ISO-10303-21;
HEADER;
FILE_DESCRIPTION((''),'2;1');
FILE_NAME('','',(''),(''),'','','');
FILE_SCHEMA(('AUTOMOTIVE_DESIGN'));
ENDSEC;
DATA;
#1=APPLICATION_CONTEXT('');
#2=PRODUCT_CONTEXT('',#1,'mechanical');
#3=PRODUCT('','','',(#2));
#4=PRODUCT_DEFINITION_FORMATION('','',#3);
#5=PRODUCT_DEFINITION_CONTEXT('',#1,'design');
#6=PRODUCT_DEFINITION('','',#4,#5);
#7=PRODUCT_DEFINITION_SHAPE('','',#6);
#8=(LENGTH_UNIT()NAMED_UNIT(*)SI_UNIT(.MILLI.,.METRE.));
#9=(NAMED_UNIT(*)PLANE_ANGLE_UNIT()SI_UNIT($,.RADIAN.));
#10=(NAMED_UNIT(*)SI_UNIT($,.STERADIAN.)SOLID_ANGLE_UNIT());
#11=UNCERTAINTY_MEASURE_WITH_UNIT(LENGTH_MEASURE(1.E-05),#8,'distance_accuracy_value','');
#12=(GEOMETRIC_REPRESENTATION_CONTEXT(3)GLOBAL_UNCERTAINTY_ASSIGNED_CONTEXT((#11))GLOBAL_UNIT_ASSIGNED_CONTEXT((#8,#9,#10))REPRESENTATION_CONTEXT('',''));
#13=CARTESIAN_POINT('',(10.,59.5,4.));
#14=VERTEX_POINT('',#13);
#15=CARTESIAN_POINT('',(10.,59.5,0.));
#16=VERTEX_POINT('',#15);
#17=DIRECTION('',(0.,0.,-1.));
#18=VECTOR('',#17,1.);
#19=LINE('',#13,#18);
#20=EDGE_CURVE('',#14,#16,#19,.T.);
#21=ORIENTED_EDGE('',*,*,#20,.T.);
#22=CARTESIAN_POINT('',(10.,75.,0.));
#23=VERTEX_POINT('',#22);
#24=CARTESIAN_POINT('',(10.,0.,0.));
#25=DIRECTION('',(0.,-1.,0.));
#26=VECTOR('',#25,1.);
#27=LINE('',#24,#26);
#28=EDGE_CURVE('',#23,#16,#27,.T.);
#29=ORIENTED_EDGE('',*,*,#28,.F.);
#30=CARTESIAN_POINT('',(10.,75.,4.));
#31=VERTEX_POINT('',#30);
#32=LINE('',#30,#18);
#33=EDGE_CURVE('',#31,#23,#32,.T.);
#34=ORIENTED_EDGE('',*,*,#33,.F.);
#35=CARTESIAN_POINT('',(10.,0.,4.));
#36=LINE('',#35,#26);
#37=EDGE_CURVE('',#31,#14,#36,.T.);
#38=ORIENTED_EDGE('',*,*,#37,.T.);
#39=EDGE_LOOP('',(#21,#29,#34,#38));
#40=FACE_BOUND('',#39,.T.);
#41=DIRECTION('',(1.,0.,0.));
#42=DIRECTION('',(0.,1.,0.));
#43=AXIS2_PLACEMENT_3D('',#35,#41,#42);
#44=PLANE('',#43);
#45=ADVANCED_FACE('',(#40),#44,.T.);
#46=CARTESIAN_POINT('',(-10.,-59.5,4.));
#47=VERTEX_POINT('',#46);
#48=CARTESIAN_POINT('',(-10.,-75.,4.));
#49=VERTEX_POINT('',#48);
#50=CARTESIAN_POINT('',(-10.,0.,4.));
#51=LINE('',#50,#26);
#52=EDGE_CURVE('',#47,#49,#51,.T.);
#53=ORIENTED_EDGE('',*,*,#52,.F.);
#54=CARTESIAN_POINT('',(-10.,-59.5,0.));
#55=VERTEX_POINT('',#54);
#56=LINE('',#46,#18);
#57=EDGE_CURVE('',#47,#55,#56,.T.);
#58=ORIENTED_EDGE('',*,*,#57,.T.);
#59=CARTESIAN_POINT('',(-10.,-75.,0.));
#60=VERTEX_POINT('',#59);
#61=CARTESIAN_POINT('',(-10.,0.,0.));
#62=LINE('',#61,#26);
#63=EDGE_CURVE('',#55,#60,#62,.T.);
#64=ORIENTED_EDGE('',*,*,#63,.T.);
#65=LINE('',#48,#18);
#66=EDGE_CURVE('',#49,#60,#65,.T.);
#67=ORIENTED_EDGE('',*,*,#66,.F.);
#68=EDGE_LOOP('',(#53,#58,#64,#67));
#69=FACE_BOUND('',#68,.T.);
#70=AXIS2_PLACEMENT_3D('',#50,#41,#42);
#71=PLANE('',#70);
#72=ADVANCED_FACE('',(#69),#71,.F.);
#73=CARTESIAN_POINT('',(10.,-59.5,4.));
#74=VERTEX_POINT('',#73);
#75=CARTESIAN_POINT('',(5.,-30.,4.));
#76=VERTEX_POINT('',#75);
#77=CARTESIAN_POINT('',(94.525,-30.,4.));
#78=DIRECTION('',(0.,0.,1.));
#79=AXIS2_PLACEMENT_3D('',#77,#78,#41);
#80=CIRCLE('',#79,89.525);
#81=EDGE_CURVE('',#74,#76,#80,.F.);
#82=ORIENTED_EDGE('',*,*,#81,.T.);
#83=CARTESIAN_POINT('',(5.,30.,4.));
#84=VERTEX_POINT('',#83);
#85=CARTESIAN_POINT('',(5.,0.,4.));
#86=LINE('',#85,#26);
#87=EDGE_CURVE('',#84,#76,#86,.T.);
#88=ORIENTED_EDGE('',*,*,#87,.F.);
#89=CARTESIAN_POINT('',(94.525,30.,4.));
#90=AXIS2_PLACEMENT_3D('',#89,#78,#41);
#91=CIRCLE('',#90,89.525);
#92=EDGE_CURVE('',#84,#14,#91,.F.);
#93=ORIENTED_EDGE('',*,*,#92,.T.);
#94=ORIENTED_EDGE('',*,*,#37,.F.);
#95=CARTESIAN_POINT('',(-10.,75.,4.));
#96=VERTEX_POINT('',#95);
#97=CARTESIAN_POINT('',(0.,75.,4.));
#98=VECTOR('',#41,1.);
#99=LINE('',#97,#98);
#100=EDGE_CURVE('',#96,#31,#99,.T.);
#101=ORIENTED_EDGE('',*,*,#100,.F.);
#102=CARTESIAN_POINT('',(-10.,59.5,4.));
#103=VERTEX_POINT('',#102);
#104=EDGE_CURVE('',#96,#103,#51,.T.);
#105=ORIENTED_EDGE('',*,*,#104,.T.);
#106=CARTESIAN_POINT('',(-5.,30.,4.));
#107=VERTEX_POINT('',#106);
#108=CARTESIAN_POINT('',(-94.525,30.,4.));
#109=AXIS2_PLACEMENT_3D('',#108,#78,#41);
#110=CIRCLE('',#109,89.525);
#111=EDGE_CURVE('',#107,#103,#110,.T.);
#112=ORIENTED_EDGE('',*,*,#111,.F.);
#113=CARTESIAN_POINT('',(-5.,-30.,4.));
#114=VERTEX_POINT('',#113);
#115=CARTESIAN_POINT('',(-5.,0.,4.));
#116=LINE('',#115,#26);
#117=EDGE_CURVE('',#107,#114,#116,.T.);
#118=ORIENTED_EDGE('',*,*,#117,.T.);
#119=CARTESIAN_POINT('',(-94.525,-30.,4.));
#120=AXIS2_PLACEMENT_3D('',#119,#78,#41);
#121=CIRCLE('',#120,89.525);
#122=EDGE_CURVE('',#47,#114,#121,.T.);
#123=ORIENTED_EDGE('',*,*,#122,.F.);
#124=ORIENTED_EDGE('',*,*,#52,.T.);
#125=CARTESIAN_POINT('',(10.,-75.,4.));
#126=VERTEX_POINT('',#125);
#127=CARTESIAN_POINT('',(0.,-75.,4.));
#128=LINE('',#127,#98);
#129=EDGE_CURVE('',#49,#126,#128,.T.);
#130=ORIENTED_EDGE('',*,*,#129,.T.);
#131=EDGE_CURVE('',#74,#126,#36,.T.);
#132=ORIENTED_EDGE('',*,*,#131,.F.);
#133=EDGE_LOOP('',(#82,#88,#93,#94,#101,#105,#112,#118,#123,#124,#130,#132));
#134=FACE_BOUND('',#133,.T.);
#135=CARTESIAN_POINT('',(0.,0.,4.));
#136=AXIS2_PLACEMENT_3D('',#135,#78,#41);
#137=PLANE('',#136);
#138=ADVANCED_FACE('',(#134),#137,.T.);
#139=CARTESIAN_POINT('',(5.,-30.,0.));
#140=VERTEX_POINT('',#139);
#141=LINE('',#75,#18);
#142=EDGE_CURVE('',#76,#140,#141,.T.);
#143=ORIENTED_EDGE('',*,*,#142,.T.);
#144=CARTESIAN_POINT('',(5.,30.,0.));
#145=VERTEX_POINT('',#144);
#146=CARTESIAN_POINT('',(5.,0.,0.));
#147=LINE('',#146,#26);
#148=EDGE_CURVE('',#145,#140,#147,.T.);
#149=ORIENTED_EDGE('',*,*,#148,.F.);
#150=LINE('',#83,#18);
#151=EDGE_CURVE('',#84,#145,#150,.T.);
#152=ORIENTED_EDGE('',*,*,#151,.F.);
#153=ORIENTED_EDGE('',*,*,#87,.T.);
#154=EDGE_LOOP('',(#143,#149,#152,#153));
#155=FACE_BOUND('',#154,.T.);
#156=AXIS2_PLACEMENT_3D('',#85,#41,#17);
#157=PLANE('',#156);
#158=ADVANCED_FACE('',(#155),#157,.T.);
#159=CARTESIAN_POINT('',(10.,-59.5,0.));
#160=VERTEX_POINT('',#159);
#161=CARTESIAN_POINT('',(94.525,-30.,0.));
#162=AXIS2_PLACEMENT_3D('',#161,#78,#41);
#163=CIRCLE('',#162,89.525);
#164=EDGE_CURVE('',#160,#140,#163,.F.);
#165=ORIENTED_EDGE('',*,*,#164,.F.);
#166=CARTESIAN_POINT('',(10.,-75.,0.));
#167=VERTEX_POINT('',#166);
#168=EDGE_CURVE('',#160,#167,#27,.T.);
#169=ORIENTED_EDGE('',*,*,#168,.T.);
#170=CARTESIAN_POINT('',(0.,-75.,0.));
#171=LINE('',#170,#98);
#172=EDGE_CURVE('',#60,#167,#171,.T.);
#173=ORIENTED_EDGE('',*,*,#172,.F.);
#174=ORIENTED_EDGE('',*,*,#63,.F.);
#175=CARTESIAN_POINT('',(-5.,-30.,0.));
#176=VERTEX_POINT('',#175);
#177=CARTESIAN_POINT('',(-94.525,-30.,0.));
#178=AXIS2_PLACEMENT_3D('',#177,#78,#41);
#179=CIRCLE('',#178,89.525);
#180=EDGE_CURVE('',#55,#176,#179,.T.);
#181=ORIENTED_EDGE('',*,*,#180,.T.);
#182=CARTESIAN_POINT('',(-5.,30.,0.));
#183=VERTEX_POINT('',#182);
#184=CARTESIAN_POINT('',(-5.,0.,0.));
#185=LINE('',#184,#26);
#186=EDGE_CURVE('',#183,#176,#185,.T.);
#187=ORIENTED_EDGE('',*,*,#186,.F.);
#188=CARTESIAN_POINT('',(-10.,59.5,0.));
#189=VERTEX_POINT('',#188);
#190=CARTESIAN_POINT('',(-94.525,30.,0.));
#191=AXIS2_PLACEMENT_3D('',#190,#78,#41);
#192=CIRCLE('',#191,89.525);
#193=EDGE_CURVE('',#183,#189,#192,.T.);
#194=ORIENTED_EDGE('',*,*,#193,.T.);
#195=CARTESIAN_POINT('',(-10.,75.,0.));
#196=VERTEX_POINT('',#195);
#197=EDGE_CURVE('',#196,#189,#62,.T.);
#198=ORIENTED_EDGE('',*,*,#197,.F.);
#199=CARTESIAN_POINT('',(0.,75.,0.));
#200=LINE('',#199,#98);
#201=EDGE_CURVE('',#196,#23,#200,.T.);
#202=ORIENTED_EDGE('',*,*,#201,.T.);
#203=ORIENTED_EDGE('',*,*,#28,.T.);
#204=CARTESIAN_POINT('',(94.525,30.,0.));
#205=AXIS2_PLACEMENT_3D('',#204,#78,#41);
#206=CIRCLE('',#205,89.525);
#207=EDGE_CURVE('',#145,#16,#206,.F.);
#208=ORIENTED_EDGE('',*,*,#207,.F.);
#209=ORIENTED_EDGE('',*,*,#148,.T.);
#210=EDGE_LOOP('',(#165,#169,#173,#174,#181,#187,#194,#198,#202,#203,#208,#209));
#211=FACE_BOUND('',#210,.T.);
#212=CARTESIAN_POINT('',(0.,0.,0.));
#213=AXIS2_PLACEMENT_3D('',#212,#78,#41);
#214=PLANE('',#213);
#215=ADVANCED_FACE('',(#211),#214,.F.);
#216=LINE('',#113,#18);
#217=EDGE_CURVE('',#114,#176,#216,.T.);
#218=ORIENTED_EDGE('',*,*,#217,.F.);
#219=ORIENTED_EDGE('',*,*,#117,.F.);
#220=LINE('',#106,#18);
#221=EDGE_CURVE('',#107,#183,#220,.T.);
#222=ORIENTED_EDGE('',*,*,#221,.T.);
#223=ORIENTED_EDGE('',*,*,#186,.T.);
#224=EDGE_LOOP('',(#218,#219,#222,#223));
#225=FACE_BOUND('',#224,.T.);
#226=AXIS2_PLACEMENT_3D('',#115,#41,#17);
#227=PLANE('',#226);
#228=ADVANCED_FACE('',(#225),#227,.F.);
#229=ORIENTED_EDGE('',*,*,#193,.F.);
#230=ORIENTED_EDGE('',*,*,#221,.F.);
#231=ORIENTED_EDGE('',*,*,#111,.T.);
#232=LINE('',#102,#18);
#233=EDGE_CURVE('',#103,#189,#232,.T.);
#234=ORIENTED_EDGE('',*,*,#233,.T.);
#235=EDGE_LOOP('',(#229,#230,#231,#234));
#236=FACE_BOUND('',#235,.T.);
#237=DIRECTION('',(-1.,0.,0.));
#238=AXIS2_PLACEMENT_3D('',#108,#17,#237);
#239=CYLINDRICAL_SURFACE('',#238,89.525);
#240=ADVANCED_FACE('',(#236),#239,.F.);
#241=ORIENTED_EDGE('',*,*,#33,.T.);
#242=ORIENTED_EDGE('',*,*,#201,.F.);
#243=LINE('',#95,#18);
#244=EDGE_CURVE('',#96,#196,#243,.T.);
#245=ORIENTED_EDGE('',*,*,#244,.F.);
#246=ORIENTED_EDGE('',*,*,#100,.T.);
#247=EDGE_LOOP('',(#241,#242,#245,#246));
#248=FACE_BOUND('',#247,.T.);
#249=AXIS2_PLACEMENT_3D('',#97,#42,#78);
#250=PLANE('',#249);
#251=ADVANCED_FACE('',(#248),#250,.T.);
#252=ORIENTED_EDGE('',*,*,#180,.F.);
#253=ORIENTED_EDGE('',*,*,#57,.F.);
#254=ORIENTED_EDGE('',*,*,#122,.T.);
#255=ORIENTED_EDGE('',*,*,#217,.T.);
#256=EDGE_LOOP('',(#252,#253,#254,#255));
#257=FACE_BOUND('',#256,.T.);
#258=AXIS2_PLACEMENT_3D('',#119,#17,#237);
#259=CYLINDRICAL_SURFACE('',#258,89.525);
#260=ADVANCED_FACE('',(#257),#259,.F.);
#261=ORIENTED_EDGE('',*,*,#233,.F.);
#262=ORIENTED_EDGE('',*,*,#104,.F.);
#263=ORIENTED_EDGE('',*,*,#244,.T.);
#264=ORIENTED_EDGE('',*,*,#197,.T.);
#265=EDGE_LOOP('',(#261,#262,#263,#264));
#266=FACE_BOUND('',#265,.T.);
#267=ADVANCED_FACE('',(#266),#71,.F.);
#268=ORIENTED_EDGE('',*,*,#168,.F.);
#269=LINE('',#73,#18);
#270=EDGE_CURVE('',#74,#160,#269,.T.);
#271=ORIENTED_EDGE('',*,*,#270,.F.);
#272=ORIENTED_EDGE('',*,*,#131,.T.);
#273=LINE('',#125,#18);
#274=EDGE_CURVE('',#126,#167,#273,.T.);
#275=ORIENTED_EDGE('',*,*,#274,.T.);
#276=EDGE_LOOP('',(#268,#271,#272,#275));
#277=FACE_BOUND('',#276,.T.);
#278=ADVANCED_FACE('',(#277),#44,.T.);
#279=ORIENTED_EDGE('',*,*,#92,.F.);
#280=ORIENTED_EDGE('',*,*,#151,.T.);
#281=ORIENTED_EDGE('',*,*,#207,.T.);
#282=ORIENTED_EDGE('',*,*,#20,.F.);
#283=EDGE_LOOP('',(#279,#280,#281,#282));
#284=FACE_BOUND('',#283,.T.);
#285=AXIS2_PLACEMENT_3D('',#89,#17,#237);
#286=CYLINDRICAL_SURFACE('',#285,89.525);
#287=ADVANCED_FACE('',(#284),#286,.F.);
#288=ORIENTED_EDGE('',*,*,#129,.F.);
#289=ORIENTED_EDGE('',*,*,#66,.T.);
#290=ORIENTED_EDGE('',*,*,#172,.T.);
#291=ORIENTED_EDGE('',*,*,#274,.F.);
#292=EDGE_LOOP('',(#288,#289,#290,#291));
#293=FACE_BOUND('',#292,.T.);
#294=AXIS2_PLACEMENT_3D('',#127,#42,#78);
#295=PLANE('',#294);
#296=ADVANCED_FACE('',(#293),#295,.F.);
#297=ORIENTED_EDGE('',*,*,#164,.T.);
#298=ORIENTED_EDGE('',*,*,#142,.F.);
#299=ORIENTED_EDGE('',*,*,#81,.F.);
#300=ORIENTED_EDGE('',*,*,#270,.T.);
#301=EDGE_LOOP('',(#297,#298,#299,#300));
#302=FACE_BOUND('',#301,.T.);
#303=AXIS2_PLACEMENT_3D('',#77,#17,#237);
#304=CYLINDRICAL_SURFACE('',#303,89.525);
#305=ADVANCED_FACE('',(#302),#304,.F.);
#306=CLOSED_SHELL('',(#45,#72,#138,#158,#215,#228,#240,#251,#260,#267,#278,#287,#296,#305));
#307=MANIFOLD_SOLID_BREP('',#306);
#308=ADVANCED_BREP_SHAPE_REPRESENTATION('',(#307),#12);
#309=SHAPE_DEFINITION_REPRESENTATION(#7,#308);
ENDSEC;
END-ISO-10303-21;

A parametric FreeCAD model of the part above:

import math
import FreeCAD as App
import Part
import Sketcher
from FreeCAD import Vector
Q = App.Units.Quantity

doc = App.newDocument("Part")
body = doc.addObject("PartDesign::Body", "Body")

sketch1 = doc.addObject("Sketcher::SketchObject", "Sketch")
body.addObject(sketch1)
sketch1.AttachmentSupport = (doc.XY_Plane, [""])
sketch1.MapMode = "FlatFace"
sketch1.addGeometry(Part.ArcOfCircle(Part.Circle(Vector(94.525, 30, 0), Vector(0, 0, 1), 89.525), math.radians(160.760544), math.radians(180)), False)
sketch1.addGeometry(Part.LineSegment(Vector(10, 59.5, 0), Vector(10, 75, 0)), False)
sketch1.addGeometry(Part.LineSegment(Vector(10, 75, 0), Vector(-10, 75, 0)), False)
sketch1.addGeometry(Part.LineSegment(Vector(-10, 75, 0), Vector(-10, 59.5, 0)), False)
sketch1.addGeometry(Part.ArcOfCircle(Part.Circle(Vector(-94.525, 30, 0), Vector(0, 0, 1), 89.525), math.radians(0), math.radians(19.239456)), False)
sketch1.addGeometry(Part.LineSegment(Vector(-5, 30, 0), Vector(-5, -30, 0)), False)
sketch1.addGeometry(Part.ArcOfCircle(Part.Circle(Vector(-94.525, -30, 0), Vector(0, 0, 1), 89.525), math.radians(-19.239456), math.radians(0)), False)
sketch1.addGeometry(Part.LineSegment(Vector(-10, -59.5, 0), Vector(-10, -75, 0)), False)
sketch1.addGeometry(Part.LineSegment(Vector(-10, -75, 0), Vector(10, -75, 0)), False)
sketch1.addGeometry(Part.LineSegment(Vector(10, -75, 0), Vector(10, -59.5, 0)), False)
sketch1.addGeometry(Part.ArcOfCircle(Part.Circle(Vector(94.525, -30, 0), Vector(0, 0, 1), 89.525), math.radians(-180), math.radians(-160.760544)), False)
sketch1.addGeometry(Part.LineSegment(Vector(5, -30, 0), Vector(5, 30, 0)), False)
sketch1.addConstraint(Sketcher.Constraint("Coincident", 0, 1, 1, 1))
sketch1.addConstraint(Sketcher.Constraint("Coincident", 1, 2, 2, 1))
sketch1.addConstraint(Sketcher.Constraint("Coincident", 2, 2, 3, 1))
sketch1.addConstraint(Sketcher.Constraint("Coincident", 3, 2, 4, 2))
sketch1.addConstraint(Sketcher.Constraint("Tangent", 4, 1, 5, 1))
sketch1.addConstraint(Sketcher.Constraint("Tangent", 5, 2, 6, 2))
sketch1.addConstraint(Sketcher.Constraint("Coincident", 6, 1, 7, 1))
sketch1.addConstraint(Sketcher.Constraint("Coincident", 7, 2, 8, 1))
sketch1.addConstraint(Sketcher.Constraint("Coincident", 8, 2, 9, 1))
sketch1.addConstraint(Sketcher.Constraint("Coincident", 9, 2, 10, 2))
sketch1.addConstraint(Sketcher.Constraint("Tangent", 10, 1, 11, 1))
sketch1.addConstraint(Sketcher.Constraint("Tangent", 11, 2, 0, 2))
sketch1.addConstraint(Sketcher.Constraint("Vertical", 1))
sketch1.addConstraint(Sketcher.Constraint("Horizontal", 2))
sketch1.addConstraint(Sketcher.Constraint("Vertical", 3))
sketch1.addConstraint(Sketcher.Constraint("Vertical", 5))
sketch1.addConstraint(Sketcher.Constraint("Vertical", 7))
sketch1.addConstraint(Sketcher.Constraint("Horizontal", 8))
sketch1.addConstraint(Sketcher.Constraint("Vertical", 9))
sketch1.addConstraint(Sketcher.Constraint("Vertical", 11))
sketch1.addConstraint(Sketcher.Constraint("Equal", 0, 4))
sketch1.addConstraint(Sketcher.Constraint("Equal", 4, 6))
sketch1.addConstraint(Sketcher.Constraint("Equal", 6, 10))
sketch1.addConstraint(Sketcher.Constraint("Symmetric", 0, 3, 6, 3, -1, 1))
sketch1.addConstraint(Sketcher.Constraint("Symmetric", 1, 2, 7, 2, -1, 1))
sketch1.addConstraint(Sketcher.Constraint("Symmetric", 3, 2, 9, 2, -1, 1))
sketch1.addConstraint(Sketcher.Constraint("Symmetric", 0, 1, 3, 2, -2))
sketch1.addConstraint(Sketcher.Constraint("DistanceX", 2, 2, 2, 1, Q("20 mm")))
sketch1.addConstraint(Sketcher.Constraint("DistanceY", 5, 2, 5, 1, Q("60 mm")))
sketch1.addConstraint(Sketcher.Constraint("DistanceY", 1, 1, 1, 2, Q("15.5 mm")))
sketch1.addConstraint(Sketcher.Constraint("DistanceY", -1, 1, 1, 2, Q("75 mm")))
sketch1.addConstraint(Sketcher.Constraint("DistanceX", 4, 1, -1, 1, Q("5 mm")))
pad1 = doc.addObject("PartDesign::Pad", "Pad")
body.addObject(pad1)
pad1.Profile = sketch1
pad1.Length = 4

doc.recompute()
